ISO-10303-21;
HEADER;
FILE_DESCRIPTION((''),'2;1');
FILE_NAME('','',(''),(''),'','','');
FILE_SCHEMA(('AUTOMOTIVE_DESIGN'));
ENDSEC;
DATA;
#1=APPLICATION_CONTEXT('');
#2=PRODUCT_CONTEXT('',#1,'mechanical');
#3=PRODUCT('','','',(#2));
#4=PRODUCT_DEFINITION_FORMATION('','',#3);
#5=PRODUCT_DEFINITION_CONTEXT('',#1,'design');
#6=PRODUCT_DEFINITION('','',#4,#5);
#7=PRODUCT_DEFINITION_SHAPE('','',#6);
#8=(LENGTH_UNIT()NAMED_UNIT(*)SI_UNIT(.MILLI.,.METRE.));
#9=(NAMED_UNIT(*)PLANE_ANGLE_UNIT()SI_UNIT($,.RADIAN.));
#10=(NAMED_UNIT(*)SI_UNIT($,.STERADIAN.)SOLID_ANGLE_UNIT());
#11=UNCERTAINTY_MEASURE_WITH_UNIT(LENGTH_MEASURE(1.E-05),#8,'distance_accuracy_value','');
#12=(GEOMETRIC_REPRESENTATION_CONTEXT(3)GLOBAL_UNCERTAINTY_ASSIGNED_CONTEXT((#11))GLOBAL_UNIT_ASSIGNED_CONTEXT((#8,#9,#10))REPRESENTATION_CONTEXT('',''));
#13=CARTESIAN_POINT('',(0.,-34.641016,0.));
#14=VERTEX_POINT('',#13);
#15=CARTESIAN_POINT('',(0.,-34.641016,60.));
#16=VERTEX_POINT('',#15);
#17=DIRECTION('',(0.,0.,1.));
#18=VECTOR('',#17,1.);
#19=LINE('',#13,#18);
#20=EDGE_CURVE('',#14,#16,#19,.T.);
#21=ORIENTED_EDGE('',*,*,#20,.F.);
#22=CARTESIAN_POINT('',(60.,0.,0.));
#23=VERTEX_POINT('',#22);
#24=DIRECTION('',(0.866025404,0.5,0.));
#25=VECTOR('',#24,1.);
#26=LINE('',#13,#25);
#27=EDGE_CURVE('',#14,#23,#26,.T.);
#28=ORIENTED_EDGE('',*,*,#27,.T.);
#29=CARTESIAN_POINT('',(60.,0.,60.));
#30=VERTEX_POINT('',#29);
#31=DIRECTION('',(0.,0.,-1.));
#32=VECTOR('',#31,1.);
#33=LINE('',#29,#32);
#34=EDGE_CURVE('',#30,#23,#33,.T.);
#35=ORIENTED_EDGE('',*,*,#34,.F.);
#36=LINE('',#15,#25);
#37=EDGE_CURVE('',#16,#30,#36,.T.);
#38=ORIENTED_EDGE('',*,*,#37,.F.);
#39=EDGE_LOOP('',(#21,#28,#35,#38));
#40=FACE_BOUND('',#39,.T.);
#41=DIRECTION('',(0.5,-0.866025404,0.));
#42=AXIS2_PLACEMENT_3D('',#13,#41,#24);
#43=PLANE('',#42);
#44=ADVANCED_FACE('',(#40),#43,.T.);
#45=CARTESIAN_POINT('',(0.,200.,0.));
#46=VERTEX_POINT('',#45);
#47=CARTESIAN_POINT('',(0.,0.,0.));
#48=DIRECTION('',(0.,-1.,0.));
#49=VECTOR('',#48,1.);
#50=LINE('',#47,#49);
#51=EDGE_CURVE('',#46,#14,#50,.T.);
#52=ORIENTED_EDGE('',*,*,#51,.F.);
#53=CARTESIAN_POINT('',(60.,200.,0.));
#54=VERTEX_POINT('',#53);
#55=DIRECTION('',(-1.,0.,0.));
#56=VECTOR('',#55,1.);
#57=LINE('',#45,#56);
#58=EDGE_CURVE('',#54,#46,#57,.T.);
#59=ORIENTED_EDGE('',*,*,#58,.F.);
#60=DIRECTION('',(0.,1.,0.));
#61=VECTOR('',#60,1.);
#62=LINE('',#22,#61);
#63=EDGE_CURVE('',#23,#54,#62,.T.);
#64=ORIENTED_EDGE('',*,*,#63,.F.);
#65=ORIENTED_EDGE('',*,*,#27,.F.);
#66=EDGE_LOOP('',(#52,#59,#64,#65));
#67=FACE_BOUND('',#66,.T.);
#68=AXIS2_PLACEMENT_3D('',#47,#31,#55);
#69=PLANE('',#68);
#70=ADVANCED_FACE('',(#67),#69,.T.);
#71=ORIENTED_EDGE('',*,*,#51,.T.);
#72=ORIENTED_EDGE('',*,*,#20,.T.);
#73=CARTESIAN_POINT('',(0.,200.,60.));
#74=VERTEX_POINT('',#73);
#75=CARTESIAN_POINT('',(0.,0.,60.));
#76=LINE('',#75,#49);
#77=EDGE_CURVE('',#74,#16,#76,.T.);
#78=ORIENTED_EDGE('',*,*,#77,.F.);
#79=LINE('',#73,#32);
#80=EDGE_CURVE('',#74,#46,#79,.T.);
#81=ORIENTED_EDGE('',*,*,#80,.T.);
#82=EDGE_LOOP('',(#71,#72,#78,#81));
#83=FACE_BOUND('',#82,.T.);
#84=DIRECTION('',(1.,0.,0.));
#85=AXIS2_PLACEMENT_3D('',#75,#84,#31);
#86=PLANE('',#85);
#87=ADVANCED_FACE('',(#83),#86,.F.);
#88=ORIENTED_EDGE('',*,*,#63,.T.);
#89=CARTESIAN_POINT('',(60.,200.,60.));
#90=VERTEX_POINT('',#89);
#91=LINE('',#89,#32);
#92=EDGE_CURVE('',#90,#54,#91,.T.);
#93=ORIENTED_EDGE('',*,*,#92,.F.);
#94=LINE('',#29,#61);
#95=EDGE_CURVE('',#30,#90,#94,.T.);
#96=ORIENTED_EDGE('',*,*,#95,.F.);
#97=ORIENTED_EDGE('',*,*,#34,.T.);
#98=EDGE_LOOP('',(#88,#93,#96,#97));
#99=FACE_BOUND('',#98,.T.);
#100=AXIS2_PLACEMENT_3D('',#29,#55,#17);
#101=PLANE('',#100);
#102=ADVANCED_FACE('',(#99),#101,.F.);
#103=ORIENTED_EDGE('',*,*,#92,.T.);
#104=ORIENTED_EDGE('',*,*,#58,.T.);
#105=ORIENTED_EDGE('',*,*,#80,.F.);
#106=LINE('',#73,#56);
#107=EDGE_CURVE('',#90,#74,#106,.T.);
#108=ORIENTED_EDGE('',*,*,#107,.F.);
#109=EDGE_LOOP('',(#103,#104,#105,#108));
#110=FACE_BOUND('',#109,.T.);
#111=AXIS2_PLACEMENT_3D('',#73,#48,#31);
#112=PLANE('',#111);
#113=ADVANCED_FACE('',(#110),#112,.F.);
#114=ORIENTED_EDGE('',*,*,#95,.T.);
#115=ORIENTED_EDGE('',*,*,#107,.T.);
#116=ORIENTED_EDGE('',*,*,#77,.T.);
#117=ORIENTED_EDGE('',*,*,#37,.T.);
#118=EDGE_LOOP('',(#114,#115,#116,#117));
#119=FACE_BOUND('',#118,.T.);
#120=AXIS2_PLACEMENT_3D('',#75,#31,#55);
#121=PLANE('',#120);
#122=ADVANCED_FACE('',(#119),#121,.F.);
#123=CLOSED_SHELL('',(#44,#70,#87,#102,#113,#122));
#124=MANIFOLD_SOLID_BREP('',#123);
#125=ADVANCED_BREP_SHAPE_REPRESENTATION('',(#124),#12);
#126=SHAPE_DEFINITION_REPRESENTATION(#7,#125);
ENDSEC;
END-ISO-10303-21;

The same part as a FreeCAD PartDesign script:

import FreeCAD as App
import Part
import Sketcher
Q = App.Units.Quantity

doc = App.newDocument("Part")
body = doc.addObject("PartDesign::Body", "Body")

# Sketch on XY plane
sketch1 = body.newObject("Sketcher::SketchObject", "Sketch")
sketch1.AttachmentSupport = (doc.getObject("XY_Plane"), [""])
sketch1.MapMode = "FlatFace"
sketch1.addGeometry(Part.LineSegment(App.Vector(0, 200, 0), App.Vector(0, 0, 0)), False)
sketch1.addGeometry(Part.LineSegment(App.Vector(0, 0, 0), App.Vector(60, 0, 0)), False)
sketch1.addGeometry(Part.LineSegment(App.Vector(60, 0, 0), App.Vector(60, 200, 0)), False)
sketch1.addGeometry(Part.LineSegment(App.Vector(60, 200, 0), App.Vector(0, 200, 0)), False)
sketch1.addConstraint(Sketcher.Constraint("Coincident", 0, 2, 1, 1))
sketch1.addConstraint(Sketcher.Constraint("Coincident", 1, 2, 2, 1))
sketch1.addConstraint(Sketcher.Constraint("Coincident", 2, 2, 3, 1))
sketch1.addConstraint(Sketcher.Constraint("Coincident", 3, 2, 0, 1))
sketch1.addConstraint(Sketcher.Constraint("Vertical", 0))
sketch1.addConstraint(Sketcher.Constraint("Horizontal", 1))
sketch1.addConstraint(Sketcher.Constraint("Vertical", 2))
sketch1.addConstraint(Sketcher.Constraint("Horizontal", 3))
sketch1.addConstraint(Sketcher.Constraint("Coincident", 0, 2, -1, 1))
sketch1.addConstraint(Sketcher.Constraint("DistanceX", 1, 1, 1, 2, Q("60 mm")))
sketch1.addConstraint(Sketcher.Constraint("DistanceY", 0, 2, 0, 1, Q("200 mm")))
pad1 = body.newObject("PartDesign::Pad", "Pad")
pad1.Profile = sketch1
pad1.Length = 60

# Sketch on XY plane
sketch2 = body.newObject("Sketcher::SketchObject", "Sketch001")
sketch2.AttachmentSupport = (doc.getObject("XY_Plane"), [""])
sketch2.MapMode = "FlatFace"
sketch2.AttachmentOffset = App.Placement(App.Vector(0, 0, 60), App.Rotation())
sketch2.addGeometry(Part.LineSegment(App.Vector(60, 0, 0), App.Vector(0, 0, 0)), False)
sketch2.addGeometry(Part.LineSegment(App.Vector(0, 0, 0), App.Vector(0, -35, 0)), False)
sketch2.addGeometry(Part.LineSegment(App.Vector(0, -35, 0), App.Vector(60, 0, 0)), False)
sketch2.addConstraint(Sketcher.Constraint("Coincident", 0, 2, 1, 1))
sketch2.addConstraint(Sketcher.Constraint("Coincident", 1, 2, 2, 1))
sketch2.addConstraint(Sketcher.Constraint("Coincident", 2, 2, 0, 1))
sketch2.addConstraint(Sketcher.Constraint("Horizontal", 0))
sketch2.addConstraint(Sketcher.Constraint("Vertical", 1))
sketch2.addConstraint(Sketcher.Constraint("Coincident", 0, 2, -1, 1))
sketch2.addConstraint(Sketcher.Constraint("DistanceX", 0, 2, 0, 1, Q("60 mm")))
sketch2.addConstraint(Sketcher.Constraint("Angle", 2, Q("30 deg")))
pad2 = body.newObject("PartDesign::Pad", "Pad001")
pad2.Profile = sketch2
pad2.Length = 60
pad2.Reversed = True

doc.recompute()
